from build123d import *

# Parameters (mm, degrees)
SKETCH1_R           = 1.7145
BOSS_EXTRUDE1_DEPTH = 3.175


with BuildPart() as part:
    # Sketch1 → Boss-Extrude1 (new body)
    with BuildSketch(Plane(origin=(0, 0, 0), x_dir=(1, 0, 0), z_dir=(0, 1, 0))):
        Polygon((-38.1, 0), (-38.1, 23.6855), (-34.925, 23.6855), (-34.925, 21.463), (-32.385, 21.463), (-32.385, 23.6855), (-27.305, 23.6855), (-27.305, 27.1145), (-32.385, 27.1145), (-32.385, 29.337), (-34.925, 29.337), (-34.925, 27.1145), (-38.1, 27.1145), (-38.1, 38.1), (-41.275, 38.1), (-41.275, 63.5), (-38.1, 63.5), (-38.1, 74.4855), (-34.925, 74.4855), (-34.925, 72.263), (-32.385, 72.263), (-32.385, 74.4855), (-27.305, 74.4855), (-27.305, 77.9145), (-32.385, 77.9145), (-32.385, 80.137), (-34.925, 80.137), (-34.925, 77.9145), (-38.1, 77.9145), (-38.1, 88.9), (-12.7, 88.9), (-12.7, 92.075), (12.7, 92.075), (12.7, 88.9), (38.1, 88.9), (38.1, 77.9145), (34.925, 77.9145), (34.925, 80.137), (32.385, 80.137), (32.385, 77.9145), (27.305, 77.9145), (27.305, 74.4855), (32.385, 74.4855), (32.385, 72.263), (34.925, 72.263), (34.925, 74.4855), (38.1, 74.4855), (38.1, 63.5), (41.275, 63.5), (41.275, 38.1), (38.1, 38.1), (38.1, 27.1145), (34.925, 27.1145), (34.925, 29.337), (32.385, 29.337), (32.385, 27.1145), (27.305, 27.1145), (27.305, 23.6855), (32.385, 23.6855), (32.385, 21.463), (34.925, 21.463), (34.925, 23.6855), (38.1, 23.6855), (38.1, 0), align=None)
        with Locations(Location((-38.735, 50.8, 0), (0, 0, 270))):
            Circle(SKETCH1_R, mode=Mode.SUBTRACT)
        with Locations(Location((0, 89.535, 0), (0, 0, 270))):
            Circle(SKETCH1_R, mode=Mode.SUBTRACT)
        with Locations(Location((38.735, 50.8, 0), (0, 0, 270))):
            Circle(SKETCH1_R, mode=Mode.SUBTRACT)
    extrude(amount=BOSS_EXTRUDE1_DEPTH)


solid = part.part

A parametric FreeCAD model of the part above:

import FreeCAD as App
import Part
import Sketcher

V = App.Vector
Q = App.Units.Quantity

doc = App.newDocument("Part")
body = doc.addObject("PartDesign::Body", "Body")

# Sketch on XZ plane
sketch1 = body.newObject("Sketcher::SketchObject", "Sketch")
sketch1.AttachmentSupport = (doc.getObject("XZ_Plane"), [""])
sketch1.MapMode = "FlatFace"
sketch1.addGeometry(Part.LineSegment(V(-38.1, -23.6855, 0), V(-38.1, 0, 0)), False)
sketch1.addGeometry(Part.LineSegment(V(-38.1, 0, 0), V(38.1, 0, 0)), False)
sketch1.addGeometry(Part.LineSegment(V(38.1, 0, 0), V(38.1, -23.6855, 0)), False)
sketch1.addGeometry(Part.LineSegment(V(38.1, -23.6855, 0), V(34.925, -23.6855, 0)), False)
sketch1.addGeometry(Part.LineSegment(V(34.925, -23.6855, 0), V(34.925, -21.463, 0)), False)
sketch1.addGeometry(Part.LineSegment(V(34.925, -21.463, 0), V(32.385, -21.463, 0)), False)
sketch1.addGeometry(Part.LineSegment(V(32.385, -21.463, 0), V(32.385, -23.6855, 0)), False)
sketch1.addGeometry(Part.LineSegment(V(32.385, -23.6855, 0), V(27.305, -23.6855, 0)), False)
sketch1.addGeometry(Part.LineSegment(V(27.305, -23.6855, 0), V(27.305, -27.1145, 0)), False)
sketch1.addGeometry(Part.LineSegment(V(27.305, -27.1145, 0), V(32.385, -27.1145, 0)), False)
sketch1.addGeometry(Part.LineSegment(V(32.385, -27.1145, 0), V(32.385, -29.337, 0)), False)
sketch1.addGeometry(Part.LineSegment(V(32.385, -29.337, 0), V(34.925, -29.337, 0)), False)
sketch1.addGeometry(Part.LineSegment(V(34.925, -29.337, 0), V(34.925, -27.1145, 0)), False)
sketch1.addGeometry(Part.LineSegment(V(34.925, -27.1145, 0), V(38.1, -27.1145, 0)), False)
sketch1.addGeometry(Part.LineSegment(V(38.1, -27.1145, 0), V(38.1, -38.1, 0)), False)
sketch1.addGeometry(Part.LineSegment(V(38.1, -38.1, 0), V(41.275, -38.1, 0)), False)
sketch1.addGeometry(Part.LineSegment(V(41.275, -38.1, 0), V(41.275, -63.5, 0)), False)
sketch1.addGeometry(Part.LineSegment(V(41.275, -63.5, 0), V(38.1, -63.5, 0)), False)
sketch1.addGeometry(Part.LineSegment(V(38.1, -63.5, 0), V(38.1, -74.4855, 0)), False)
sketch1.addGeometry(Part.LineSegment(V(38.1, -74.4855, 0), V(34.925, -74.4855, 0)), False)
sketch1.addGeometry(Part.LineSegment(V(34.925, -74.4855, 0), V(34.925, -72.263, 0)), False)
sketch1.addGeometry(Part.LineSegment(V(34.925, -72.263, 0), V(32.385, -72.263, 0)), False)
sketch1.addGeometry(Part.LineSegment(V(32.385, -72.263, 0), V(32.385, -74.4855, 0)), False)
sketch1.addGeometry(Part.LineSegment(V(32.385, -74.4855, 0), V(27.305, -74.4855, 0)), False)
sketch1.addGeometry(Part.LineSegment(V(27.305, -74.4855, 0), V(27.305, -77.9145, 0)), False)
sketch1.addGeometry(Part.LineSegment(V(27.305, -77.9145, 0), V(32.385, -77.9145, 0)), False)
sketch1.addGeometry(Part.LineSegment(V(32.385, -77.9145, 0), V(32.385, -80.137, 0)), False)
sketch1.addGeometry(Part.LineSegment(V(32.385, -80.137, 0), V(34.925, -80.137, 0)), False)
sketch1.addGeometry(Part.LineSegment(V(34.925, -80.137, 0), V(34.925, -77.9145, 0)), False)
sketch1.addGeometry(Part.LineSegment(V(34.925, -77.9145, 0), V(38.1, -77.9145, 0)), False)
sketch1.addGeometry(Part.LineSegment(V(38.1, -77.9145, 0), V(38.1, -88.9, 0)), False)
sketch1.addGeometry(Part.LineSegment(V(38.1, -88.9, 0), V(12.7, -88.9, 0)), False)
sketch1.addGeometry(Part.LineSegment(V(12.7, -88.9, 0), V(12.7, -92.075, 0)), False)
sketch1.addGeometry(Part.LineSegment(V(12.7, -92.075, 0), V(-12.7, -92.075, 0)), False)
sketch1.addGeometry(Part.LineSegment(V(-12.7, -92.075, 0), V(-12.7, -88.9, 0)), False)
sketch1.addGeometry(Part.LineSegment(V(-12.7, -88.9, 0), V(-38.1, -88.9, 0)), False)
sketch1.addGeometry(Part.LineSegment(V(-38.1, -88.9, 0), V(-38.1, -77.9145, 0)), False)
sketch1.addGeometry(Part.LineSegment(V(-38.1, -77.9145, 0), V(-34.925, -77.9145, 0)), False)
sketch1.addGeometry(Part.LineSegment(V(-34.925, -77.9145, 0), V(-34.925, -80.137, 0)), False)
sketch1.addGeometry(Part.LineSegment(V(-34.925, -80.137, 0), V(-32.385, -80.137, 0)), False)
sketch1.addGeometry(Part.LineSegment(V(-32.385, -80.137, 0), V(-32.385, -77.9145, 0)), False)
sketch1.addGeometry(Part.LineSegment(V(-32.385, -77.9145, 0), V(-27.305, -77.9145, 0)), False)
sketch1.addGeometry(Part.LineSegment(V(-27.305, -77.9145, 0), V(-27.305, -74.4855, 0)), False)
sketch1.addGeometry(Part.LineSegment(V(-27.305, -74.4855, 0), V(-32.385, -74.4855, 0)), False)
sketch1.addGeometry(Part.LineSegment(V(-32.385, -74.4855, 0), V(-32.385, -72.263, 0)), False)
sketch1.addGeometry(Part.LineSegment(V(-32.385, -72.263, 0), V(-34.925, -72.263, 0)), False)
sketch1.addGeometry(Part.LineSegment(V(-34.925, -72.263, 0), V(-34.925, -74.4855, 0)), False)
sketch1.addGeometry(Part.LineSegment(V(-34.925, -74.4855, 0), V(-38.1, -74.4855, 0)), False)
sketch1.addGeometry(Part.LineSegment(V(-38.1, -74.4855, 0), V(-38.1, -63.5, 0)), False)
sketch1.addGeometry(Part.LineSegment(V(-38.1, -63.5, 0), V(-41.275, -63.5, 0)), False)
sketch1.addGeometry(Part.LineSegment(V(-41.275, -63.5, 0), V(-41.275, -38.1, 0)), False)
sketch1.addGeometry(Part.LineSegment(V(-41.275, -38.1, 0), V(-38.1, -38.1, 0)), False)
sketch1.addGeometry(Part.LineSegment(V(-38.1, -38.1, 0), V(-38.1, -27.1145, 0)), False)
sketch1.addGeometry(Part.LineSegment(V(-38.1, -27.1145, 0), V(-34.925, -27.1145, 0)), False)
sketch1.addGeometry(Part.LineSegment(V(-34.925, -27.1145, 0), V(-34.925, -29.337, 0)), False)
sketch1.addGeometry(Part.LineSegment(V(-34.925, -29.337, 0), V(-32.385, -29.337, 0)), False)
sketch1.addGeometry(Part.LineSegment(V(-32.385, -29.337, 0), V(-32.385, -27.1145, 0)), False)
sketch1.addGeometry(Part.LineSegment(V(-32.385, -27.1145, 0), V(-27.305, -27.1145, 0)), False)
sketch1.addGeometry(Part.LineSegment(V(-27.305, -27.1145, 0), V(-27.305, -23.6855, 0)), False)
sketch1.addGeometry(Part.LineSegment(V(-27.305, -23.6855, 0), V(-32.385, -23.6855, 0)), False)
sketch1.addGeometry(Part.LineSegment(V(-32.385, -23.6855, 0), V(-32.385, -21.463, 0)), False)
sketch1.addGeometry(Part.LineSegment(V(-32.385, -21.463, 0), V(-34.925, -21.463, 0)), False)
sketch1.addGeometry(Part.LineSegment(V(-34.925, -21.463, 0), V(-34.925, -23.6855, 0)), False)
sketch1.addGeometry(Part.LineSegment(V(-34.925, -23.6855, 0), V(-38.1, -23.6855, 0)), False)
sketch1.addGeometry(Part.Circle(V(38.735, -50.8, 0), V(0, 0, 1), 1.7145), False)
sketch1.addGeometry(Part.Circle(V(-38.735, -50.8, 0), V(0, 0, 1), 1.7145), False)
sketch1.addGeometry(Part.Circle(V(0, -89.535, 0), V(0, 0, 1), 1.7145), False)
sketch1.addConstraint(Sketcher.Constraint("Coincident", 0, 2, 1, 1))
sketch1.addConstraint(Sketcher.Constraint("Coincident", 1, 2, 2, 1))
sketch1.addConstraint(Sketcher.Constraint("Coincident", 2, 2, 3, 1))
sketch1.addConstraint(Sketcher.Constraint("Coincident", 3, 2, 4, 1))
sketch1.addConstraint(Sketcher.Constraint("Coincident", 4, 2, 5, 1))
sketch1.addConstraint(Sketcher.Constraint("Coincident", 5, 2, 6, 1))
sketch1.addConstraint(Sketcher.Constraint("Coincident", 6, 2, 7, 1))
sketch1.addConstraint(Sketcher.Constraint("Coincident", 7, 2, 8, 1))
sketch1.addConstraint(Sketcher.Constraint("Coincident", 8, 2, 9, 1))
sketch1.addConstraint(Sketcher.Constraint("Coincident", 9, 2, 10, 1))
sketch1.addConstraint(Sketcher.Constraint("Coincident", 10, 2, 11, 1))
sketch1.addConstraint(Sketcher.Constraint("Coincident", 11, 2, 12, 1))
sketch1.addConstraint(Sketcher.Constraint("Coincident", 12, 2, 13, 1))
sketch1.addConstraint(Sketcher.Constraint("Coincident", 13, 2, 14, 1))
sketch1.addConstraint(Sketcher.Constraint("Coincident", 14, 2, 15, 1))
sketch1.addConstraint(Sketcher.Constraint("Coincident", 15, 2, 16, 1))
sketch1.addConstraint(Sketcher.Constraint("Coincident", 16, 2, 17, 1))
sketch1.addConstraint(Sketcher.Constraint("Coincident", 17, 2, 18, 1))
sketch1.addConstraint(Sketcher.Constraint("Coincident", 18, 2, 19, 1))
sketch1.addConstraint(Sketcher.Constraint("Coincident", 19, 2, 20, 1))
sketch1.addConstraint(Sketcher.Constraint("Coincident", 20, 2, 21, 1))
sketch1.addConstraint(Sketcher.Constraint("Coincident", 21, 2, 22, 1))
sketch1.addConstraint(Sketcher.Constraint("Coincident", 22, 2, 23, 1))
sketch1.addConstraint(Sketcher.Constraint("Coincident", 23, 2, 24, 1))
sketch1.addConstraint(Sketcher.Constraint("Coincident", 24, 2, 25, 1))
sketch1.addConstraint(Sketcher.Constraint("Coincident", 25, 2, 26, 1))
sketch1.addConstraint(Sketcher.Constraint("Coincident", 26, 2, 27, 1))
sketch1.addConstraint(Sketcher.Constraint("Coincident", 27, 2, 28, 1))
sketch1.addConstraint(Sketcher.Constraint("Coincident", 28, 2, 29, 1))
sketch1.addConstraint(Sketcher.Constraint("Coincident", 29, 2, 30, 1))
sketch1.addConstraint(Sketcher.Constraint("Coincident", 30, 2, 31, 1))
sketch1.addConstraint(Sketcher.Constraint("Coincident", 31, 2, 32, 1))
sketch1.addConstraint(Sketcher.Constraint("Coincident", 32, 2, 33, 1))
sketch1.addConstraint(Sketcher.Constraint("Coincident", 33, 2, 34, 1))
sketch1.addConstraint(Sketcher.Constraint("Coincident", 34, 2, 35, 1))
sketch1.addConstraint(Sketcher.Constraint("Coincident", 35, 2, 36, 1))
sketch1.addConstraint(Sketcher.Constraint("Coincident", 36, 2, 37, 1))
sketch1.addConstraint(Sketcher.Constraint("Coincident", 37, 2, 38, 1))
sketch1.addConstraint(Sketcher.Constraint("Coincident", 38, 2, 39, 1))
sketch1.addConstraint(Sketcher.Constraint("Coincident", 39, 2, 40, 1))
sketch1.addConstraint(Sketcher.Constraint("Coincident", 40, 2, 41, 1))
sketch1.addConstraint(Sketcher.Constraint("Coincident", 41, 2, 42, 1))
sketch1.addConstraint(Sketcher.Constraint("Coincident", 42, 2, 43, 1))
sketch1.addConstraint(Sketcher.Constraint("Coincident", 43, 2, 44, 1))
sketch1.addConstraint(Sketcher.Constraint("Coincident", 44, 2, 45, 1))
sketch1.addConstraint(Sketcher.Constraint("Coincident", 45, 2, 46, 1))
sketch1.addConstraint(Sketcher.Constraint("Coincident", 46, 2, 47, 1))
sketch1.addConstraint(Sketcher.Constraint("Coincident", 47, 2, 48, 1))
sketch1.addConstraint(Sketcher.Constraint("Coincident", 48, 2, 49, 1))
sketch1.addConstraint(Sketcher.Constraint("Coincident", 49, 2, 50, 1))
sketch1.addConstraint(Sketcher.Constraint("Coincident", 50, 2, 51, 1))
sketch1.addConstraint(Sketcher.Constraint("Coincident", 51, 2, 52, 1))
sketch1.addConstraint(Sketcher.Constraint("Coincident", 52, 2, 53, 1))
sketch1.addConstraint(Sketcher.Constraint("Coincident", 53, 2, 54, 1))
sketch1.addConstraint(Sketcher.Constraint("Coincident", 54, 2, 55, 1))
sketch1.addConstraint(Sketcher.Constraint("Coincident", 55, 2, 56, 1))
sketch1.addConstraint(Sketcher.Constraint("Coincident", 56, 2, 57, 1))
sketch1.addConstraint(Sketcher.Constraint("Coincident", 57, 2, 58, 1))
sketch1.addConstraint(Sketcher.Constraint("Coincident", 58, 2, 59, 1))
sketch1.addConstraint(Sketcher.Constraint("Coincident", 59, 2, 60, 1))
sketch1.addConstraint(Sketcher.Constraint("Coincident", 60, 2, 61, 1))
sketch1.addConstraint(Sketcher.Constraint("Coincident", 61, 2, 62, 1))
sketch1.addConstraint(Sketcher.Constraint("Coincident", 62, 2, 63, 1))
sketch1.addConstraint(Sketcher.Constraint("Coincident", 63, 2, 0, 1))
sketch1.addConstraint(Sketcher.Constraint("Vertical", 0))
sketch1.addConstraint(Sketcher.Constraint("Horizontal", 1))
sketch1.addConstraint(Sketcher.Constraint("Vertical", 2))
sketch1.addConstraint(Sketcher.Constraint("Horizontal", 3))
sketch1.addConstraint(Sketcher.Constraint("Vertical", 4))
sketch1.addConstraint(Sketcher.Constraint("Horizontal", 5))
sketch1.addConstraint(Sketcher.Constraint("Vertical", 6))
sketch1.addConstraint(Sketcher.Constraint("Horizontal", 7))
sketch1.addConstraint(Sketcher.Constraint("Vertical", 8))
sketch1.addConstraint(Sketcher.Constraint("Horizontal", 9))
sketch1.addConstraint(Sketcher.Constraint("Vertical", 10))
sketch1.addConstraint(Sketcher.Constraint("Horizontal", 11))
sketch1.addConstraint(Sketcher.Constraint("Vertical", 12))
sketch1.addConstraint(Sketcher.Constraint("Horizontal", 13))
sketch1.addConstraint(Sketcher.Constraint("Vertical", 14))
sketch1.addConstraint(Sketcher.Constraint("Horizontal", 15))
sketch1.addConstraint(Sketcher.Constraint("Vertical", 16))
sketch1.addConstraint(Sketcher.Constraint("Horizontal", 17))
sketch1.addConstraint(Sketcher.Constraint("Vertical", 18))
sketch1.addConstraint(Sketcher.Constraint("Horizontal", 19))
sketch1.addConstraint(Sketcher.Constraint("Vertical", 20))
sketch1.addConstraint(Sketcher.Constraint("Horizontal", 21))
sketch1.addConstraint(Sketcher.Constraint("Vertical", 22))
sketch1.addConstraint(Sketcher.Constraint("Horizontal", 23))
sketch1.addConstraint(Sketcher.Constraint("Vertical", 24))
sketch1.addConstraint(Sketcher.Constraint("Horizontal", 25))
sketch1.addConstraint(Sketcher.Constraint("Vertical", 26))
sketch1.addConstraint(Sketcher.Constraint("Horizontal", 27))
sketch1.addConstraint(Sketcher.Constraint("Vertical", 28))
sketch1.addConstraint(Sketcher.Constraint("Horizontal", 29))
sketch1.addConstraint(Sketcher.Constraint("Vertical", 30))
sketch1.addConstraint(Sketcher.Constraint("Horizontal", 31))
sketch1.addConstraint(Sketcher.Constraint("Vertical", 32))
sketch1.addConstraint(Sketcher.Constraint("Horizontal", 33))
sketch1.addConstraint(Sketcher.Constraint("Vertical", 34))
sketch1.addConstraint(Sketcher.Constraint("Horizontal", 35))
sketch1.addConstraint(Sketcher.Constraint("Vertical", 36))
sketch1.addConstraint(Sketcher.Constraint("Horizontal", 37))
sketch1.addConstraint(Sketcher.Constraint("Vertical", 38))
sketch1.addConstraint(Sketcher.Constraint("Horizontal", 39))
sketch1.addConstraint(Sketcher.Constraint("Vertical", 40))
sketch1.addConstraint(Sketcher.Constraint("Horizontal", 41))
sketch1.addConstraint(Sketcher.Constraint("Vertical", 42))
sketch1.addConstraint(Sketcher.Constraint("Horizontal", 43))
sketch1.addConstraint(Sketcher.Constraint("Vertical", 44))
sketch1.addConstraint(Sketcher.Constraint("Horizontal", 45))
sketch1.addConstraint(Sketcher.Constraint("Vertical", 46))
sketch1.addConstraint(Sketcher.Constraint("Horizontal", 47))
sketch1.addConstraint(Sketcher.Constraint("Vertical", 48))
sketch1.addConstraint(Sketcher.Constraint("Horizontal", 49))
sketch1.addConstraint(Sketcher.Constraint("Vertical", 50))
sketch1.addConstraint(Sketcher.Constraint("Horizontal", 51))
sketch1.addConstraint(Sketcher.Constraint("Vertical", 52))
sketch1.addConstraint(Sketcher.Constraint("Horizontal", 53))
sketch1.addConstraint(Sketcher.Constraint("Vertical", 54))
sketch1.addConstraint(Sketcher.Constraint("Horizontal", 55))
sketch1.addConstraint(Sketcher.Constraint("Vertical", 56))
sketch1.addConstraint(Sketcher.Constraint("Horizontal", 57))
sketch1.addConstraint(Sketcher.Constraint("Vertical", 58))
sketch1.addConstraint(Sketcher.Constraint("Horizontal", 59))
sketch1.addConstraint(Sketcher.Constraint("Vertical", 60))
sketch1.addConstraint(Sketcher.Constraint("Horizontal", 61))
sketch1.addConstraint(Sketcher.Constraint("Vertical", 62))
sketch1.addConstraint(Sketcher.Constraint("Horizontal", 63))
sketch1.addConstraint(Sketcher.Constraint("Equal", 64, 65))
sketch1.addConstraint(Sketcher.Constraint("Equal", 65, 66))
sketch1.addConstraint(Sketcher.Constraint("Symmetric", 0, 2, 1, 2, -1, 1))
sketch1.addConstraint(Sketcher.Constraint("Symmetric", 64, 3, 65, 3, -2))
sketch1.addConstraint(Sketcher.Constraint("Symmetric", 31, 2, 34, 2, -2))
sketch1.addConstraint(Sketcher.Constraint("Symmetric", 29, 2, 36, 2, -2))
sketch1.addConstraint(Sketcher.Constraint("Symmetric", 27, 2, 38, 2, -2))
sketch1.addConstraint(Sketcher.Constraint("Symmetric", 25, 2, 40, 2, -2))
sketch1.addConstraint(Sketcher.Constraint("Symmetric", 23, 2, 42, 2, -2))
sketch1.addConstraint(Sketcher.Constraint("Symmetric", 21, 2, 44, 2, -2))
sketch1.addConstraint(Sketcher.Constraint("Symmetric", 19, 2, 46, 2, -2))
sketch1.addConstraint(Sketcher.Constraint("Symmetric", 17, 2, 48, 2, -2))
sketch1.addConstraint(Sketcher.Constraint("Symmetric", 15, 2, 50, 2, -2))
sketch1.addConstraint(Sketcher.Constraint("Symmetric", 13, 2, 52, 2, -2))
sketch1.addConstraint(Sketcher.Constraint("Symmetric", 11, 2, 54, 2, -2))
sketch1.addConstraint(Sketcher.Constraint("Symmetric", 9, 2, 56, 2, -2))
sketch1.addConstraint(Sketcher.Constraint("Symmetric", 7, 2, 58, 2, -2))
sketch1.addConstraint(Sketcher.Constraint("Symmetric", 5, 2, 60, 2, -2))
sketch1.addConstraint(Sketcher.Constraint("Symmetric", 3, 2, 62, 2, -2))
sketch1.addConstraint(Sketcher.Constraint("PointOnObject", 66, 3, -2))
sketch1.addConstraint(Sketcher.Constraint("Horizontal", 3, 2, 6, 2))
sketch1.addConstraint(Sketcher.Constraint("Horizontal", 9, 2, 12, 2))
sketch1.addConstraint(Sketcher.Constraint("Horizontal", 19, 2, 22, 2))
sketch1.addConstraint(Sketcher.Constraint("Horizontal", 25, 2, 28, 2))
sketch1.addConstraint(Sketcher.Constraint("Vertical", 6, 2, 9, 2))
sketch1.addConstraint(Sketcher.Constraint("Vertical", 4, 2, 11, 2))
sketch1.addConstraint(Sketcher.Constraint("Vertical", 2, 2, 13, 2))
sketch1.addConstraint(Sketcher.Constraint("Vertical", 14, 2, 17, 2))
sketch1.addConstraint(Sketcher.Constraint("Vertical", 12, 2, 19, 2))
sketch1.addConstraint(Sketcher.Constraint("Vertical", 10, 2, 21, 2))
sketch1.addConstraint(Sketcher.Constraint("Vertical", 8, 2, 23, 2))
sketch1.addConstraint(Sketcher.Constraint("Vertical", 22, 2, 25, 2))
sketch1.addConstraint(Sketcher.Constraint("Vertical", 20, 2, 27, 2))
sketch1.addConstraint(Sketcher.Constraint("Vertical", 18, 2, 29, 2))
sketch1.addConstraint(Sketcher.Constraint("Equal", 13, 15))
sketch1.addConstraint(Sketcher.Constraint("Equal", 31, 33))
sketch1.addConstraint(Sketcher.Constraint("Equal", 6, 10))
sketch1.addConstraint(Sketcher.Constraint("Equal", 35, 16))
sketch1.addConstraint(Sketcher.Constraint("Equal", 14, 18))
sketch1.addConstraint(Sketcher.Constraint("Equal", 12, 20))
sketch1.addConstraint(Sketcher.Constraint("Equal", 8, 24))
sketch1.addConstraint(Sketcher.Constraint("Equal", 22, 26))
sketch1.addConstraint(Sketcher.Constraint("Equal", 18, 30))
sketch1.addConstraint(Sketcher.Constraint("Equal", 63, 32))
sketch1.addConstraint(Sketcher.Constraint("DistanceX", 1, 1, 1, 2, Q("3 in")))
sketch1.addConstraint(Sketcher.Constraint("Diameter", 64, Q("0.135 in")))
sketch1.addConstraint(Sketcher.Constraint("DistanceX", 5, 2, 5, 1, Q("0.1 in")))
sketch1.addConstraint(Sketcher.Constraint("DistanceX", 7, 2, 7, 1, Q("0.2 in")))
sketch1.addConstraint(Sketcher.Constraint("DistanceY", 64, 3, -1, 1, Q("2 in")))
sketch1.addConstraint(Sketcher.Constraint("DistanceY", 14, 2, -1, 1, Q("1.5 in")))
sketch1.addConstraint(Sketcher.Constraint("DistanceY", 30, 2, -1, 1, Q("3.5 in")))
sketch1.addConstraint(Sketcher.Constraint("DistanceX", 3, 2, 3, 1, Q("0.125 in")))
sketch1.addConstraint(Sketcher.Constraint("DistanceY", 8, 2, 8, 1, Q("0.135 in")))
sketch1.addConstraint(Sketcher.Constraint("DistanceY", 4, 1, 4, 2, Q("0.0875 in")))
sketch1.addConstraint(Sketcher.Constraint("DistanceX", -1, 1, 64, 3, Q("1.525 in")))
sketch1.addConstraint(Sketcher.Constraint("DistanceY", 66, 3, -1, 1, Q("3.525 in")))
pad1 = body.newObject("PartDesign::Pad", "Pad")
pad1.Profile = sketch1
pad1.Length = Q("0.125 in")
pad1.Reversed = True

doc.recompute()
